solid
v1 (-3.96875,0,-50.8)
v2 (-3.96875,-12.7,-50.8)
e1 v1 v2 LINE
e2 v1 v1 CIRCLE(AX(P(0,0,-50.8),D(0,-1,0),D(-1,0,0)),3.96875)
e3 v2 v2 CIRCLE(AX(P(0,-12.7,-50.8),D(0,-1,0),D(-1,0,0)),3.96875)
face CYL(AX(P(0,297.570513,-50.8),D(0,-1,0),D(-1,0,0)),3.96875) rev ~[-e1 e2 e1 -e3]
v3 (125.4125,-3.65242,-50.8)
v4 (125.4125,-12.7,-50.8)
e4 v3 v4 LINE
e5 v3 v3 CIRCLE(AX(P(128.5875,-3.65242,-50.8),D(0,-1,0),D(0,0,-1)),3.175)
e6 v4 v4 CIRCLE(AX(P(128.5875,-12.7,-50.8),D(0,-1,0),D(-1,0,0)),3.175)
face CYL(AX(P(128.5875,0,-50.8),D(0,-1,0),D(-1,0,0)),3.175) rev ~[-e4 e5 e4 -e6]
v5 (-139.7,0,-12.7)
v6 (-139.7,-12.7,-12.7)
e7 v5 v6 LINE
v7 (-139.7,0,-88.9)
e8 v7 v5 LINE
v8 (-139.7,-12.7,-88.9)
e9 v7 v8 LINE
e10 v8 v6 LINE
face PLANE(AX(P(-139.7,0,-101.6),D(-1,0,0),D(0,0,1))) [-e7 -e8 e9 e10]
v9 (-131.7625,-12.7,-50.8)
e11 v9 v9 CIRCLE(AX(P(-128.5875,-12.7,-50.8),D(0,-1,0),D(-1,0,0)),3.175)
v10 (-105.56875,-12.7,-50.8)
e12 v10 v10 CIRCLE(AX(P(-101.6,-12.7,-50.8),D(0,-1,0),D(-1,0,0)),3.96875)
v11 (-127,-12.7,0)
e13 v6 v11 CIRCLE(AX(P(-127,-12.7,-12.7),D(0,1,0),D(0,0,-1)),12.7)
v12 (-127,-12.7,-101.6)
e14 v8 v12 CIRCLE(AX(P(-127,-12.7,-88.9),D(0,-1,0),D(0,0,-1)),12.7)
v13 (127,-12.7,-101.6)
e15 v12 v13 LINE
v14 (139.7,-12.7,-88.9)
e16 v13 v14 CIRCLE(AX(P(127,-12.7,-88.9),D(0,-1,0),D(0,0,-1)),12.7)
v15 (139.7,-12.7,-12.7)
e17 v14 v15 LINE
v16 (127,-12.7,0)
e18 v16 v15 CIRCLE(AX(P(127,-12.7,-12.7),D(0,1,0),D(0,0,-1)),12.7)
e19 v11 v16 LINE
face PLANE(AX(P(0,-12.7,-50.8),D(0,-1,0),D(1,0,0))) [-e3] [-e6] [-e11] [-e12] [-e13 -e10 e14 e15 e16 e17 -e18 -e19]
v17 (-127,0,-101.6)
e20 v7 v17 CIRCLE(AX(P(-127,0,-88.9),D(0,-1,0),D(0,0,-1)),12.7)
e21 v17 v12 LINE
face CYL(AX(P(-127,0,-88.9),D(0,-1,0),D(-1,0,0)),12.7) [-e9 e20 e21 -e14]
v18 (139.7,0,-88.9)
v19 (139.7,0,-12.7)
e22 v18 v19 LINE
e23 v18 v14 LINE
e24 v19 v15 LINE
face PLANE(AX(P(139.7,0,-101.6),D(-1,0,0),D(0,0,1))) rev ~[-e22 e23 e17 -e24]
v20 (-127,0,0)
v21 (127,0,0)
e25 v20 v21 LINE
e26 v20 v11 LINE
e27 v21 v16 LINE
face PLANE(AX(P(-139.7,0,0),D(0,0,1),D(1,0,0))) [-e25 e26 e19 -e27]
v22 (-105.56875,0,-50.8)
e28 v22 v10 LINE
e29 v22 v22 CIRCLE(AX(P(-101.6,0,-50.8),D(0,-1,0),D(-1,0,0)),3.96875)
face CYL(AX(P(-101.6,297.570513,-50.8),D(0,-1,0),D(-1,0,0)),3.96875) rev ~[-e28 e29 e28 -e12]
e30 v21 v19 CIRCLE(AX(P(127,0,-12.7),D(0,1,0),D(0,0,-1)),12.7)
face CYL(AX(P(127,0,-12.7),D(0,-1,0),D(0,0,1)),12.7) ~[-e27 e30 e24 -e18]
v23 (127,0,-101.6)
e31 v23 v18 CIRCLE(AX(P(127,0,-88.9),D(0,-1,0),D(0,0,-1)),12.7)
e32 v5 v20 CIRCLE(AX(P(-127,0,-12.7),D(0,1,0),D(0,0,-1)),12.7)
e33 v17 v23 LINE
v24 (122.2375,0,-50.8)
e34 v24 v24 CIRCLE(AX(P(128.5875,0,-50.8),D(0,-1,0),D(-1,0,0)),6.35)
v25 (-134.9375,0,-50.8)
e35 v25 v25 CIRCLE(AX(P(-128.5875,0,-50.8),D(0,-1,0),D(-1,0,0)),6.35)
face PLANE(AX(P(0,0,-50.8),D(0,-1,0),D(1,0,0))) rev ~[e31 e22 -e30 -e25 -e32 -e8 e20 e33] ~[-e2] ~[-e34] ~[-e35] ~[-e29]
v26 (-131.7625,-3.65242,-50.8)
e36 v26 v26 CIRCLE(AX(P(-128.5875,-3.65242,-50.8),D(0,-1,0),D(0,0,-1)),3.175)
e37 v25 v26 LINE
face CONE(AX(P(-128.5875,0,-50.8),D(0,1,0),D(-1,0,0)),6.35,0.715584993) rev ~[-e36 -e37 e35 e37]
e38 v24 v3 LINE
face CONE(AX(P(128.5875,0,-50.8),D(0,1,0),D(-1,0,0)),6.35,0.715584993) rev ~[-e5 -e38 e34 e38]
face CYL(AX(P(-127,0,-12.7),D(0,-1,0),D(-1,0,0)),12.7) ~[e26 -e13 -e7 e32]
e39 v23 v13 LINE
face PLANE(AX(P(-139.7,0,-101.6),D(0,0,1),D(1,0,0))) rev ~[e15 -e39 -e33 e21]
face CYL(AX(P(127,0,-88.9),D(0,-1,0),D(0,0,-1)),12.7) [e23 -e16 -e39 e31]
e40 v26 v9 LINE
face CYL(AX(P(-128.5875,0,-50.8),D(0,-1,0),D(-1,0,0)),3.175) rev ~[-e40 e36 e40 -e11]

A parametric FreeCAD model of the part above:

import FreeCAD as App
import Part
import Sketcher
from FreeCAD import Vector
Q = App.Units.Quantity


def edges_at(feature, points):
    """Names of the edges that pass closest to the given points."""
    edges = feature.Shape.Edges
    near = lambda p: min(range(len(edges)), key=lambda i: edges[i].distToShape(Part.Vertex(*p))[0])
    return sorted({f"Edge{near(p) + 1}" for p in points})


def add_polygon(sketch, points):
    """Adds a closed chain of lines whose ends are joined by coincident constraints."""
    first, n = sketch.GeometryCount, len(points)
    for a, b in zip(points, points[1:] + points[:1]):
        sketch.addGeometry(Part.LineSegment(App.Vector(*a, 0), App.Vector(*b, 0)), False)
    for i in range(n):
        sketch.addConstraint(Sketcher.Constraint("Coincident", first + i, 2, first + (i + 1) % n, 1))

doc = App.newDocument("Part")
body = doc.addObject("PartDesign::Body", "Body")

# Sketch on XZ plane
sketch1 = body.newObject("Sketcher::SketchObject", "Sketch")
sketch1.AttachmentSupport = (doc.getObject("XZ_Plane"), [""])
sketch1.MapMode = "FlatFace"
add_polygon(sketch1, [(-140, 0), (-140, -102), (140, -102), (140, 0)])  # lines 0-3
sketch1.addConstraint(Sketcher.Constraint("Vertical", 0))
sketch1.addConstraint(Sketcher.Constraint("Horizontal", 1))
sketch1.addConstraint(Sketcher.Constraint("Vertical", 2))
sketch1.addConstraint(Sketcher.Constraint("Horizontal", 3))
sketch1.addConstraint(Sketcher.Constraint("Symmetric", 2, 2, 3, 2, -1, 1))
sketch1.addConstraint(Sketcher.Constraint("DistanceX", 1, 1, 1, 2, Q("11 in")))
sketch1.addConstraint(Sketcher.Constraint("DistanceY", 0, 2, 0, 1, Q("4 in")))
pad1 = body.newObject("PartDesign::Pad", "Pad")
pad1.Profile = sketch1
pad1.Length = Q("0.5 in")

# Sketch on XZ plane
sketch2 = body.newObject("Sketcher::SketchObject", "Sketch001")
sketch2.AttachmentSupport = (doc.getObject("XZ_Plane"), [""])
sketch2.MapMode = "FlatFace"
sketch2.addGeometry(Part.Circle(Vector(-128.6, -50.8, 0), Vector(0, 0, 1), 3.2), False)
sketch2.addGeometry(Part.Circle(Vector(128.6, -50.8, 0), Vector(0, 0, 1), 3.2), False)
sketch2.addConstraint(Sketcher.Constraint("Equal", 0, 1))
sketch2.addConstraint(Sketcher.Constraint("Symmetric", 0, 3, 1, 3, -2))
sketch2.addConstraint(Sketcher.Constraint("Diameter", 0, Q("0.25 in")))
sketch2.addConstraint(Sketcher.Constraint("DistanceY", 0, 3, -1, 1, Q("2 in")))
sketch2.addConstraint(Sketcher.Constraint("DistanceX", 0, 3, -1, 1, Q("5.0625 in")))
doc.recompute()
hole = body.newObject("PartDesign::Hole", "Hole")
hole.Profile = sketch2
hole.ThreadType = "None"
hole.Diameter = Q("0.25 in")
hole.DepthType = "ThroughAll"
hole.HoleCutType = "Countersink"
hole.HoleCutDiameter = Q("0.5 in")
hole.HoleCutCountersinkAngle = 82
hole.Reversed = True

# Sketch on XZ plane
sketch3 = body.newObject("Sketcher::SketchObject", "Sketch002")
sketch3.AttachmentSupport = (doc.getObject("XZ_Plane"), [""])
sketch3.MapMode = "FlatFace"
sketch3.addGeometry(Part.Circle(Vector(-101.6, -50.8, 0), Vector(0, 0, 1), 4), False)
sketch3.addGeometry(Part.Circle(Vector(0, -50.8, 0), Vector(0, 0, 1), 4), False)
sketch3.addConstraint(Sketcher.Constraint("Equal", 0, 1))
sketch3.addConstraint(Sketcher.Constraint("PointOnObject", 1, 3, -2))
sketch3.addConstraint(Sketcher.Constraint("Horizontal", 0, 3, 1, 3))
sketch3.addConstraint(Sketcher.Constraint("Diameter", 0, Q("0.3125 in")))
sketch3.addConstraint(Sketcher.Constraint("DistanceX", 0, 3, -1, 1, Q("4 in")))
sketch3.addConstraint(Sketcher.Constraint("DistanceY", 0, 3, -1, 1, Q("2 in")))
doc.recompute()
hole2 = body.newObject("PartDesign::Hole", "Hole001")
hole2.Profile = sketch3
hole2.ThreadType = "None"
hole2.Diameter = Q("0.3125 in")
hole2.DepthType = "ThroughAll"
hole2.Reversed = True
doc.recompute()

fillet = body.newObject("PartDesign::Fillet", "Fillet")
fillet.Base = (hole2, edges_at(hole2, [
    (139.7, -6.35, 0),
    (139.7, -6.35, -101.6),
    (-139.7, -6.35, -101.6),
    (-139.7, -6.35, 0),
]))
fillet.Radius = Q("0.5 in")

doc.recompute()
